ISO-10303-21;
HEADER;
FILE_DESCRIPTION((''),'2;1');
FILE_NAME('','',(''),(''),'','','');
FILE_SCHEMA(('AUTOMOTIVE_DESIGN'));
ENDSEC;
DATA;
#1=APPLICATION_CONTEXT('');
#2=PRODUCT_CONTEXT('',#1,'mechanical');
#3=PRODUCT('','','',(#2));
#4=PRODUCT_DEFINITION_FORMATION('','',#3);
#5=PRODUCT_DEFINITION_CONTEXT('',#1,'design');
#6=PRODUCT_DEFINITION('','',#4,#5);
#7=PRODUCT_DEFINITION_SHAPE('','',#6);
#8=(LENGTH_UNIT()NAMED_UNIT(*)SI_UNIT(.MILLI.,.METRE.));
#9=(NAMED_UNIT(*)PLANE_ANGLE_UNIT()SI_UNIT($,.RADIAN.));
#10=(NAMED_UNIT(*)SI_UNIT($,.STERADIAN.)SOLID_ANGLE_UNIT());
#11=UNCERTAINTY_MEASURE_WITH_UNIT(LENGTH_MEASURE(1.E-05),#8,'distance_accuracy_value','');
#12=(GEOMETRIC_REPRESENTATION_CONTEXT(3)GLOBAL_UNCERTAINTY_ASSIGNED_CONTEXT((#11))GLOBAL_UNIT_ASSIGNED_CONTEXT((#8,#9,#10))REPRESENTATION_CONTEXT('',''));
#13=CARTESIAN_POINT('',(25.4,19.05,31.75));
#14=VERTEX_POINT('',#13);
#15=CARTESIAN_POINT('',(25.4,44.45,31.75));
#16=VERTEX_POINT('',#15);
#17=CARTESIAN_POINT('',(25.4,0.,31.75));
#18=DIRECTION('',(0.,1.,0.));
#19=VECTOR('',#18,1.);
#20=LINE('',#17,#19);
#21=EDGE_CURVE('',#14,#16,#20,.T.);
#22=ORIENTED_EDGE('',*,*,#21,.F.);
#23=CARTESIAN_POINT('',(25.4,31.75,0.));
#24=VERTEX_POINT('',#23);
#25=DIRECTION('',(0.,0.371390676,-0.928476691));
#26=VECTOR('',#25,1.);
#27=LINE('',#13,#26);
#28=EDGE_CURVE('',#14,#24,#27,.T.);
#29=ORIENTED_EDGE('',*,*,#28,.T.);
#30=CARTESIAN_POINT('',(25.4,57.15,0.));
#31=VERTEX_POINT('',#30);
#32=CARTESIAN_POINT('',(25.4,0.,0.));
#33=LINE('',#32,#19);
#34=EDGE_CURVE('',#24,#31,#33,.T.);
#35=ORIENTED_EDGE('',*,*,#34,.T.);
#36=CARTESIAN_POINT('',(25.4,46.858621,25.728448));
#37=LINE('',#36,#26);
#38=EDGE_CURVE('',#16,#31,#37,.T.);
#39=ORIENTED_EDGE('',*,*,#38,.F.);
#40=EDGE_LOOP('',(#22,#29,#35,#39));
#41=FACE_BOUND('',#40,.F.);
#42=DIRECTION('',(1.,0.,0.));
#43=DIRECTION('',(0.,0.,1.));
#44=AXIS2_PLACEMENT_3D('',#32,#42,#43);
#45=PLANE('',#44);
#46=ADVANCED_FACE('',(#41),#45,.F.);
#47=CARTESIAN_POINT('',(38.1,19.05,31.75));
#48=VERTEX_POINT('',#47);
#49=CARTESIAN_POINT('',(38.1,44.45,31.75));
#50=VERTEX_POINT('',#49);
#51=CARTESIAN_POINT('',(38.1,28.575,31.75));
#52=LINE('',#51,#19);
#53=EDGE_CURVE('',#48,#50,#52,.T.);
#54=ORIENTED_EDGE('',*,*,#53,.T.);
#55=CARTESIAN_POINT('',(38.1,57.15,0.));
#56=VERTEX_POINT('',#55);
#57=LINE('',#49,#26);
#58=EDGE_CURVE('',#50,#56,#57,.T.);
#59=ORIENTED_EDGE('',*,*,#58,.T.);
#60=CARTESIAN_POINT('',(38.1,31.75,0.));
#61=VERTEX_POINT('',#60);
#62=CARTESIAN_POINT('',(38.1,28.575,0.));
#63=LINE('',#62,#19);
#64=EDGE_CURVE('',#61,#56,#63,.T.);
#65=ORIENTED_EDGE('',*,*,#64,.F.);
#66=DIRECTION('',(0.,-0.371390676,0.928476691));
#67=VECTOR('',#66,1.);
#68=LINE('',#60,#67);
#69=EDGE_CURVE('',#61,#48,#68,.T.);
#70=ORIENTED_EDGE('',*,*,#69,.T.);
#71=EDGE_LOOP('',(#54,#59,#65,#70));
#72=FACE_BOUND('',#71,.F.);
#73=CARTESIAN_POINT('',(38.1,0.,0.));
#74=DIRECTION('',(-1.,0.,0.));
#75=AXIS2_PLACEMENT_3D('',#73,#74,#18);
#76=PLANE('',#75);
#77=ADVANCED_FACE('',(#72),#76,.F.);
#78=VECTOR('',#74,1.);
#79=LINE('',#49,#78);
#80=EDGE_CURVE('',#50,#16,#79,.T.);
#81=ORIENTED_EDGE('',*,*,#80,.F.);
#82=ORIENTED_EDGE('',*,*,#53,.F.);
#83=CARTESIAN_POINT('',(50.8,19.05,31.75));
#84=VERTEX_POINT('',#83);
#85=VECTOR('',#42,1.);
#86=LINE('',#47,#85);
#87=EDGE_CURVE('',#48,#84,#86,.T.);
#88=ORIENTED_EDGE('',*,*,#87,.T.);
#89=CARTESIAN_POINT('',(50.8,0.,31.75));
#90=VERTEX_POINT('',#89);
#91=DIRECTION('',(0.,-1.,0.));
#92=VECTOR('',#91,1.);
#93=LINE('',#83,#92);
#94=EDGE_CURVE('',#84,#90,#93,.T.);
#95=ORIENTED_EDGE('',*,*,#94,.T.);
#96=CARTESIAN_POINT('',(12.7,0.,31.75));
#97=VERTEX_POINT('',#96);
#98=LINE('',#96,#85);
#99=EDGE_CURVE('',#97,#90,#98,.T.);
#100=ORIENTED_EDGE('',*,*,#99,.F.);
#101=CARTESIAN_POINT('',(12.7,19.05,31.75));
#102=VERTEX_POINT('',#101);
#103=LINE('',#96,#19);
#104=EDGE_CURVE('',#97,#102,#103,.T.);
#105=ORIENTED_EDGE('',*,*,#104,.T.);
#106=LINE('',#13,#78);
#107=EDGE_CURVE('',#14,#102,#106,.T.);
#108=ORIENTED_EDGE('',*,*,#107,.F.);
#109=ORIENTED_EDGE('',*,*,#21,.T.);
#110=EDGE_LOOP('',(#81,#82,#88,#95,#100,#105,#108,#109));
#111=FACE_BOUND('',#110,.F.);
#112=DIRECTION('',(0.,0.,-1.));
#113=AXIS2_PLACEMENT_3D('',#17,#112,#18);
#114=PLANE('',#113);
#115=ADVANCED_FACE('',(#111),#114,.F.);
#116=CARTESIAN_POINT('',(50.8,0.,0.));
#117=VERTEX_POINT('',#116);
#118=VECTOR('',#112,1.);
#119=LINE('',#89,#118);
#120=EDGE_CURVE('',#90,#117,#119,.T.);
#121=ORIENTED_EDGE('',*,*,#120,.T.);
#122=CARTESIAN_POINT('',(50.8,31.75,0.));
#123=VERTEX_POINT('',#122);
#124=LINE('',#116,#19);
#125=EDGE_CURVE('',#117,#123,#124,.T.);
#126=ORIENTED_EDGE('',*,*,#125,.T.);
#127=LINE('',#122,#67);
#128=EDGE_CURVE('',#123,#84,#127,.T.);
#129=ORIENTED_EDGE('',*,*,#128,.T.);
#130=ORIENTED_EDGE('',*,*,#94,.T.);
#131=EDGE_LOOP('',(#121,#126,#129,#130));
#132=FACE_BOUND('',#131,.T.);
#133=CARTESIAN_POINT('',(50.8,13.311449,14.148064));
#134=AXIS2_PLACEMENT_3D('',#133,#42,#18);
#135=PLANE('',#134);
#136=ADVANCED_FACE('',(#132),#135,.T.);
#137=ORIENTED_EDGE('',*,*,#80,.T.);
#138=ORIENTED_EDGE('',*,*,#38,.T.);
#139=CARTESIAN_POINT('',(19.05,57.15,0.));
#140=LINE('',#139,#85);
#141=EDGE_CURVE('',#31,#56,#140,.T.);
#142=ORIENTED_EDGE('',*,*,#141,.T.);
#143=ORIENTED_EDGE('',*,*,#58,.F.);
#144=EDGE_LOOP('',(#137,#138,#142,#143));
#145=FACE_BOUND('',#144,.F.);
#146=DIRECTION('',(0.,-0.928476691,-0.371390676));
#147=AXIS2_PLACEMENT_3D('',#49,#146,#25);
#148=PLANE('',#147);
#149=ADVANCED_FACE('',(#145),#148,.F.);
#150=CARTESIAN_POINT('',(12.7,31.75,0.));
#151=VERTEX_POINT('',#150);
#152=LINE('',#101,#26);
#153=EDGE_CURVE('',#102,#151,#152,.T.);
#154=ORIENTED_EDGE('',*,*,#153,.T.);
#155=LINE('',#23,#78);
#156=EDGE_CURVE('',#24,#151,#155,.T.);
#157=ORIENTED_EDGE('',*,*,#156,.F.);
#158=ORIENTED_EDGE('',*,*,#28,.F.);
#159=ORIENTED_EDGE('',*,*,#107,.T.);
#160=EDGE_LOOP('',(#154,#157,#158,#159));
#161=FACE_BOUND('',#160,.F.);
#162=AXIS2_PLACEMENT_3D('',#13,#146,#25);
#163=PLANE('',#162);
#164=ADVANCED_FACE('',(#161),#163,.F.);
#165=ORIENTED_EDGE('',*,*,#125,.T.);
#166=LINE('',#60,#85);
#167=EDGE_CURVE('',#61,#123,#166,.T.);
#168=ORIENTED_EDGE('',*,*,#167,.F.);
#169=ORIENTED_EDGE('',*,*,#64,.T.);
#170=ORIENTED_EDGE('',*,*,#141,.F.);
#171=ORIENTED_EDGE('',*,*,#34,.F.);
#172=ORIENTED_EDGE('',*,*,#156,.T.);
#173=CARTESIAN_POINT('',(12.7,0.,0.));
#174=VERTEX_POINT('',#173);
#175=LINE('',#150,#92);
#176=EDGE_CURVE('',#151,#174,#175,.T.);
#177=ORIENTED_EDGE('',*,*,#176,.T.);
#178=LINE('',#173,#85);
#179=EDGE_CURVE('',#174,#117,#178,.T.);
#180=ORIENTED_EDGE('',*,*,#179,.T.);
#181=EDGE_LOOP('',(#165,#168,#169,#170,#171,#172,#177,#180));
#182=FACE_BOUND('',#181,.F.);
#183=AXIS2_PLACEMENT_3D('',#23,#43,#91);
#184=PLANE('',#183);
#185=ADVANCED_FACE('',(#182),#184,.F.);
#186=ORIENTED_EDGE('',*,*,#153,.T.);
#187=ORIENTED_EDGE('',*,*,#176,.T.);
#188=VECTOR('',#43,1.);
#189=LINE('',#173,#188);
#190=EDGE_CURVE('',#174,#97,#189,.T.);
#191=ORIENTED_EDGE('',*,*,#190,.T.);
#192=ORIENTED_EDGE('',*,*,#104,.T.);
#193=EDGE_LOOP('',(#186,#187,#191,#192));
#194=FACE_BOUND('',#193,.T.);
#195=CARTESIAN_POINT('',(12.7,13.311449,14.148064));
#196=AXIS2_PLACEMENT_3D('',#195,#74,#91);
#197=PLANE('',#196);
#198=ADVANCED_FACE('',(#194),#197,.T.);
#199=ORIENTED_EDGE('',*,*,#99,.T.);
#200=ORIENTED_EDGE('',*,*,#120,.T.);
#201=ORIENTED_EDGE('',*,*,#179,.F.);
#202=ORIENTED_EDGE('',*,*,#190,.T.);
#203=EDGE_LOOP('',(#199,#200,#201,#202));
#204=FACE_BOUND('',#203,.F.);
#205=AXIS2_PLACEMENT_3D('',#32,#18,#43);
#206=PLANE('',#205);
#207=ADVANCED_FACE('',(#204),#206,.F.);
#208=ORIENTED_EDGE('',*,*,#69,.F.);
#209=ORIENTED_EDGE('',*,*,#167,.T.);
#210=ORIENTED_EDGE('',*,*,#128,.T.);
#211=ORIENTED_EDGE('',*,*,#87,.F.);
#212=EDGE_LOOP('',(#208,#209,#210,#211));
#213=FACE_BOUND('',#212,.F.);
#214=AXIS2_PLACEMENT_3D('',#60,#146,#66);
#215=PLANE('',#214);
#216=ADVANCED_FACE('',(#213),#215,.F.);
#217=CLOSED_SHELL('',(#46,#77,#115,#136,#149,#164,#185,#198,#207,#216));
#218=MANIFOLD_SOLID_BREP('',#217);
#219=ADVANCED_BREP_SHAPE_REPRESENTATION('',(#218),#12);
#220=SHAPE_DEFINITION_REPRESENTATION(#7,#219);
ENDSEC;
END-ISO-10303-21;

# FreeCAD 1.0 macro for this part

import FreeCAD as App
import Part
import Sketcher
Q = App.Units.Quantity


def add_polygon(sketch, points):
    """Adds a closed chain of lines whose ends are joined by coincident constraints."""
    first, n = sketch.GeometryCount, len(points)
    for a, b in zip(points, points[1:] + points[:1]):
        sketch.addGeometry(Part.LineSegment(App.Vector(*a, 0), App.Vector(*b, 0)), False)
    for i in range(n):
        sketch.addConstraint(Sketcher.Constraint("Coincident", first + i, 2, first + (i + 1) % n, 1))

doc = App.newDocument("Part")
body = doc.addObject("PartDesign::Body", "Body")

# Sketch on XY plane
sketch1 = doc.addObject("Sketcher::SketchObject", "Sketch")
body.addObject(sketch1)
sketch1.AttachmentSupport = (doc.XY_Plane, [""])
sketch1.MapMode = "FlatFace"
add_polygon(sketch1, [(0, 57), (0, 0), (38, 0), (38, 57)])  # lines 0-3
sketch1.addConstraint(Sketcher.Constraint("Vertical", 0))
sketch1.addConstraint(Sketcher.Constraint("Horizontal", 1))
sketch1.addConstraint(Sketcher.Constraint("Vertical", 2))
sketch1.addConstraint(Sketcher.Constraint("Horizontal", 3))
sketch1.addConstraint(Sketcher.Constraint("Coincident", 0, 2, -1, 1))
sketch1.addConstraint(Sketcher.Constraint("DistanceX", 1, 1, 1, 2, Q("1.5 in")))
sketch1.addConstraint(Sketcher.Constraint("DistanceY", 0, 2, 0, 1, Q("2.25 in")))
pad1 = doc.addObject("PartDesign::Pad", "Pad")
body.addObject(pad1)
pad1.Profile = sketch1
pad1.Length = Q("1.25 in")

# Sketch on XZ plane
sketch2 = doc.addObject("Sketcher::SketchObject", "Sketch001")
body.addObject(sketch2)
sketch2.AttachmentSupport = (doc.XZ_Plane, [""])
sketch2.MapMode = "FlatFace"
add_polygon(sketch2, [(0, 32), (0, 0), (25, 0), (25, 32)])  # lines 0-3
sketch2.addConstraint(Sketcher.Constraint("Vertical", 0))
sketch2.addConstraint(Sketcher.Constraint("Horizontal", 1))
sketch2.addConstraint(Sketcher.Constraint("Vertical", 2))
sketch2.addConstraint(Sketcher.Constraint("Horizontal", 3))
sketch2.addConstraint(Sketcher.Constraint("Coincident", 0, 2, -1, 1))
sketch2.addConstraint(Sketcher.Constraint("DistanceX", 1, 1, 1, 2, Q("1 in")))
sketch2.addConstraint(Sketcher.Constraint("DistanceY", 0, 2, 0, 1, Q("1.25 in")))
pocket1 = doc.addObject("PartDesign::Pocket", "Pocket")
body.addObject(pocket1)
pocket1.Profile = sketch2
pocket1.Length = Q("3 in")

# Sketch on YZ plane
sketch3 = doc.addObject("Sketcher::SketchObject", "Sketch002")
body.addObject(sketch3)
sketch3.AttachmentSupport = (doc.YZ_Plane, [""])
sketch3.MapMode = "FlatFace"
sketch3.AttachmentOffset = App.Placement(App.Vector(0, 0, 1.5 * 25.4), App.Rotation())
add_polygon(sketch3, [(19, 32), (0, 32), (0, 0), (32, 0)])  # lines 0-3
sketch3.addConstraint(Sketcher.Constraint("Horizontal", 0))
sketch3.addConstraint(Sketcher.Constraint("Vertical", 1))
sketch3.addConstraint(Sketcher.Constraint("Horizontal", 2))
sketch3.addConstraint(Sketcher.Constraint("Coincident", 1, 2, -1, 1))
sketch3.addConstraint(Sketcher.Constraint("Equal", 2, 1))
sketch3.addConstraint(Sketcher.Constraint("DistanceX", 0, 2, 0, 1, Q("0.75 in")))
sketch3.addConstraint(Sketcher.Constraint("DistanceX", 2, 1, 2, 2, Q("1.25 in")))
pad2 = doc.addObject("PartDesign::Pad", "Pad001")
body.addObject(pad2)
pad2.Profile = sketch3
pad2.Length = Q("0.5 in")

# Sketch on YZ plane
sketch4 = doc.addObject("Sketcher::SketchObject", "Sketch003")
body.addObject(sketch4)
sketch4.AttachmentSupport = (doc.YZ_Plane, [""])
sketch4.MapMode = "FlatFace"
sketch4.AttachmentOffset = App.Placement(App.Vector(0, 0, 1 * 25.4), App.Rotation())
add_polygon(sketch4, [(0, 32), (19, 32), (32, 0), (0, 0)])  # lines 0-3
sketch4.addConstraint(Sketcher.Constraint("Horizontal", 0))
sketch4.addConstraint(Sketcher.Constraint("Horizontal", 2))
sketch4.addConstraint(Sketcher.Constraint("Vertical", 3))
sketch4.addConstraint(Sketcher.Constraint("Coincident", 2, 2, -1, 1))
sketch4.addConstraint(Sketcher.Constraint("Equal", 2, 3))
sketch4.addConstraint(Sketcher.Constraint("DistanceX", 0, 1, 0, 2, Q("0.75 in")))
sketch4.addConstraint(Sketcher.Constraint("DistanceX", 2, 2, 2, 1, Q("1.25 in")))
pad3 = doc.addObject("PartDesign::Pad", "Pad002")
body.addObject(pad3)
pad3.Profile = sketch4
pad3.Length = Q("0.5 in")
pad3.Reversed = True

# Sketch on YZ plane
sketch5 = doc.addObject("Sketcher::SketchObject", "Sketch004")
body.addObject(sketch5)
sketch5.AttachmentSupport = (doc.YZ_Plane, [""])
sketch5.MapMode = "FlatFace"
sketch5.AttachmentOffset = App.Placement(App.Vector(0, 0, 1.5 * 25.4), App.Rotation())
add_polygon(sketch5, [(57, 32), (44, 32), (57, 0)])  # lines 0-2
sketch5.addConstraint(Sketcher.Constraint("Horizontal", 0))
sketch5.addConstraint(Sketcher.Constraint("Vertical", 2))
sketch5.addConstraint(Sketcher.Constraint("PointOnObject", 1, 2, -1))
sketch5.addConstraint(Sketcher.Constraint("DistanceX", 0, 2, 0, 1, Q("0.5 in")))
sketch5.addConstraint(Sketcher.Constraint("DistanceY", 2, 1, 2, 2, Q("1.25 in")))
sketch5.addConstraint(Sketcher.Constraint("DistanceX", -1, 1, 0, 2, Q("1.75 in")))
pocket2 = doc.addObject("PartDesign::Pocket", "Pocket001")
body.addObject(pocket2)
pocket2.Profile = sketch5
pocket2.Length = Q("1 in")

doc.recompute()
